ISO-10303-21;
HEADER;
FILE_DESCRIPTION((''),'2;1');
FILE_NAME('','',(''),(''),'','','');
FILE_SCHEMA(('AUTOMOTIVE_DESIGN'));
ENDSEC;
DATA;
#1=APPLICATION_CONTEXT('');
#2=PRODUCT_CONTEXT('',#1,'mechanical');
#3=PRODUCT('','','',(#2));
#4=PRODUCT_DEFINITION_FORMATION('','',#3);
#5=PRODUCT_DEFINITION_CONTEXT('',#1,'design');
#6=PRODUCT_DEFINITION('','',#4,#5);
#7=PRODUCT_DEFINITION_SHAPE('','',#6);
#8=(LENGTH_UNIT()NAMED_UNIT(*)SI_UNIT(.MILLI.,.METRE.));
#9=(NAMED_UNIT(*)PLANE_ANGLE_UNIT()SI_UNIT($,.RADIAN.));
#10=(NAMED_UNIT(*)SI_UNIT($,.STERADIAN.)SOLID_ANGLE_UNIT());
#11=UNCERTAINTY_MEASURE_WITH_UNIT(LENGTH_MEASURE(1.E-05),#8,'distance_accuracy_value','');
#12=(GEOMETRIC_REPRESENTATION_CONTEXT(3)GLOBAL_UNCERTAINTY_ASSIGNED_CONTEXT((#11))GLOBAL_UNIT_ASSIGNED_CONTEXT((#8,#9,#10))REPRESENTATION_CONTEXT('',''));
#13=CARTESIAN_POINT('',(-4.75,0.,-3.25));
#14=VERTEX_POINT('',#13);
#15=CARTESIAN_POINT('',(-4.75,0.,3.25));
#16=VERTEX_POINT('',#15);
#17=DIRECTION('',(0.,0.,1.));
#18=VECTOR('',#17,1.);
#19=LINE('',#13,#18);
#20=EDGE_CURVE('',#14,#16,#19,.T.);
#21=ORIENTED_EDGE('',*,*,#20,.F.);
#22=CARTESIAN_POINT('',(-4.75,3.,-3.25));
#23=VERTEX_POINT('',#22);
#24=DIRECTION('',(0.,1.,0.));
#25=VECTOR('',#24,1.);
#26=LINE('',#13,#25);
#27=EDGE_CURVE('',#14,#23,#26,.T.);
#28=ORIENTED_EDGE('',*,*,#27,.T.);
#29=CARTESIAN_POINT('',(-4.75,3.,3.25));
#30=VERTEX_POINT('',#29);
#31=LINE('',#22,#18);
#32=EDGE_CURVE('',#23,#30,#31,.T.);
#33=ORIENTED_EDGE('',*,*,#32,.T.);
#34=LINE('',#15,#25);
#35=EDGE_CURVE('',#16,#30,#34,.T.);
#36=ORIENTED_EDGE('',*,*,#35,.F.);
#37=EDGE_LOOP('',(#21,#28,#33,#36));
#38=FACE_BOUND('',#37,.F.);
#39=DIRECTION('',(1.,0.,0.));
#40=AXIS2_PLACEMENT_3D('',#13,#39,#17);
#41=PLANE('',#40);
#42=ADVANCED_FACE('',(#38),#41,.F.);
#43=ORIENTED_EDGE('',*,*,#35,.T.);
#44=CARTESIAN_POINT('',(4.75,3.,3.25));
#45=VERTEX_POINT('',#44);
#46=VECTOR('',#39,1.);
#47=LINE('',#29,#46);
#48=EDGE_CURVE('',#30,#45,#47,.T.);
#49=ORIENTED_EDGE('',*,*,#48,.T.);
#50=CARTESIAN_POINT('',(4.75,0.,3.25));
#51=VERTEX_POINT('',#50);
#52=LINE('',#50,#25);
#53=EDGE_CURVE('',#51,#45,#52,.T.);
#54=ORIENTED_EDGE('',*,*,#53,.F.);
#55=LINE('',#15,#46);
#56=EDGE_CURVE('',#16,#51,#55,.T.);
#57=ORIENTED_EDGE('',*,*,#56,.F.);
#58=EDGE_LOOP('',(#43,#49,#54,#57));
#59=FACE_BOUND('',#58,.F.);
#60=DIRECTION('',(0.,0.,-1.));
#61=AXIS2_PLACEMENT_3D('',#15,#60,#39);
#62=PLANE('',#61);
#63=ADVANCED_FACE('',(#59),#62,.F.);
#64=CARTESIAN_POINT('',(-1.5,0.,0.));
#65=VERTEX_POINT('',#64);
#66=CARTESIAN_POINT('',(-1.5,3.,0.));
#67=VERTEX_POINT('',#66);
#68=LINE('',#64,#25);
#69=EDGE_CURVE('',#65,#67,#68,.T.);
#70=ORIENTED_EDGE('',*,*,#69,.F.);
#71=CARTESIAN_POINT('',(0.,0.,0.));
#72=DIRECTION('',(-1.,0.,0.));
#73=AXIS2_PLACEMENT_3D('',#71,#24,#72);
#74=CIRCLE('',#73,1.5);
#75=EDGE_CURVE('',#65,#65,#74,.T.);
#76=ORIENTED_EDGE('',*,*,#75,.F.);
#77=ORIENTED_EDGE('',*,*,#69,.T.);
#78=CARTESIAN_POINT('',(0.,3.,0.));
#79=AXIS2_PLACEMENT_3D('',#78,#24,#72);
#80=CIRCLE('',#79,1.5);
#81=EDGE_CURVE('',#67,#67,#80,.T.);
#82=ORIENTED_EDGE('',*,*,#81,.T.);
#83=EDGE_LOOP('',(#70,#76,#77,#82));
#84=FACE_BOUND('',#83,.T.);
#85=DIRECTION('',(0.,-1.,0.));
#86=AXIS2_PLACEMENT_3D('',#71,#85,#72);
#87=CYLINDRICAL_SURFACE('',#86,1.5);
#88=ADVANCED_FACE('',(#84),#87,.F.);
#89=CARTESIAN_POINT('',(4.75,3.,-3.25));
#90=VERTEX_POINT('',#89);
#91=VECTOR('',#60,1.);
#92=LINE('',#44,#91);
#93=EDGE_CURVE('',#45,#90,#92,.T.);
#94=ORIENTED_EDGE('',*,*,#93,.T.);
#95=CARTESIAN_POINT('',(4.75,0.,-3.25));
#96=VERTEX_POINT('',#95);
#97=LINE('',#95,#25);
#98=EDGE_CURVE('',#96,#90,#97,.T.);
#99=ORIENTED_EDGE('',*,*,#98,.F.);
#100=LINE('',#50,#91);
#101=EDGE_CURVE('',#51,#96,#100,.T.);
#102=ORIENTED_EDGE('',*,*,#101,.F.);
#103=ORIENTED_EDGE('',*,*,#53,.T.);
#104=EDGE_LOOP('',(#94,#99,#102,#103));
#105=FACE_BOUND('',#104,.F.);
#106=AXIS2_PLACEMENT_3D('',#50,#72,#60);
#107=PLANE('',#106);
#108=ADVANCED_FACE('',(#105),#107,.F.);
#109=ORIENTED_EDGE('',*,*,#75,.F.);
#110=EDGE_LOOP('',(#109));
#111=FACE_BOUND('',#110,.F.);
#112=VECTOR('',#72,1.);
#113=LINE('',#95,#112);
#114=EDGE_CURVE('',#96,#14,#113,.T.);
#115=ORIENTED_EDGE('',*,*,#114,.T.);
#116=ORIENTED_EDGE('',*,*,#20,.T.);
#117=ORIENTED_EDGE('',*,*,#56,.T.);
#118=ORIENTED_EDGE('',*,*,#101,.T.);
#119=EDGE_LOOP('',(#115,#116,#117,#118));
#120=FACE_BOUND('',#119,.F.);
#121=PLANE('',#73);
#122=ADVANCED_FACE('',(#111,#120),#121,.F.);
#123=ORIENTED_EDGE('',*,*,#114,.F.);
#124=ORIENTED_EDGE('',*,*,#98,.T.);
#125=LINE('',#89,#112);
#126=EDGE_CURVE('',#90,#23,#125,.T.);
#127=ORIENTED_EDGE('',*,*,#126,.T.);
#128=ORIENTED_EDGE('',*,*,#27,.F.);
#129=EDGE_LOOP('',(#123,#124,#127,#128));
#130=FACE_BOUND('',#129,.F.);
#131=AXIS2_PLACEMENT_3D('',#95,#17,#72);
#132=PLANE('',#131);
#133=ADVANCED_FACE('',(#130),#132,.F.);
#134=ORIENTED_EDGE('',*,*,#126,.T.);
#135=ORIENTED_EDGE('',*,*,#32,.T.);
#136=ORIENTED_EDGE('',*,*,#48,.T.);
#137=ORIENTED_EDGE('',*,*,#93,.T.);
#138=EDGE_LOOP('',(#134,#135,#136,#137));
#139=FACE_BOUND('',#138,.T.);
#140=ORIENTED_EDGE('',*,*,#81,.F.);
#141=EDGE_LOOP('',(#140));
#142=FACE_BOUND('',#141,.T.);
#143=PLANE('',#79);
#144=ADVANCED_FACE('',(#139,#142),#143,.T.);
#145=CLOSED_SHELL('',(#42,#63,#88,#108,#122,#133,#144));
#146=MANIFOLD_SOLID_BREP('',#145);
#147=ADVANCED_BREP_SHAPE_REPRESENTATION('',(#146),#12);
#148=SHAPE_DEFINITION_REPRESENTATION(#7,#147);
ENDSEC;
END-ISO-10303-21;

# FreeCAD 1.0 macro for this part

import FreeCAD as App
import Part
import Sketcher
from FreeCAD import Vector
Q = App.Units.Quantity


def add_polygon(sketch, points):
    """Adds a closed chain of lines whose ends are joined by coincident constraints."""
    first, n = sketch.GeometryCount, len(points)
    for a, b in zip(points, points[1:] + points[:1]):
        sketch.addGeometry(Part.LineSegment(App.Vector(*a, 0), App.Vector(*b, 0)), False)
    for i in range(n):
        sketch.addConstraint(Sketcher.Constraint("Coincident", first + i, 2, first + (i + 1) % n, 1))

doc = App.newDocument("Part")
body = doc.addObject("PartDesign::Body", "Body")

# Sketch on XZ plane
sketch1 = body.newObject("Sketcher::SketchObject", "Sketch")
sketch1.AttachmentSupport = (doc.getObject("XZ_Plane"), [""])
sketch1.MapMode = "FlatFace"
add_polygon(sketch1, [(-4.8, -3.2), (-4.8, 3.2), (4.8, 3.2), (4.8, -3.2)])  # lines 0-3
sketch1.addGeometry(Part.Circle(Vector(0, 0, 0), Vector(0, 0, 1), 1.5), False)  # 4
sketch1.addConstraint(Sketcher.Constraint("Vertical", 0))
sketch1.addConstraint(Sketcher.Constraint("Horizontal", 1))
sketch1.addConstraint(Sketcher.Constraint("Vertical", 2))
sketch1.addConstraint(Sketcher.Constraint("Horizontal", 3))
sketch1.addConstraint(Sketcher.Constraint("Coincident", 4, 3, -1, 1))
sketch1.addConstraint(Sketcher.Constraint("Symmetric", 0, 2, 2, 2, -1, 1))
sketch1.addConstraint(Sketcher.Constraint("Diameter", 4, Q("3 mm")))
sketch1.addConstraint(Sketcher.Constraint("DistanceX", 1, 1, 1, 2, Q("9.5 mm")))
sketch1.addConstraint(Sketcher.Constraint("DistanceY", 0, 1, 0, 2, Q("6.5 mm")))
pad1 = body.newObject("PartDesign::Pad", "Pad")
pad1.Profile = sketch1
pad1.Length = 3
pad1.Reversed = True

doc.recompute()
